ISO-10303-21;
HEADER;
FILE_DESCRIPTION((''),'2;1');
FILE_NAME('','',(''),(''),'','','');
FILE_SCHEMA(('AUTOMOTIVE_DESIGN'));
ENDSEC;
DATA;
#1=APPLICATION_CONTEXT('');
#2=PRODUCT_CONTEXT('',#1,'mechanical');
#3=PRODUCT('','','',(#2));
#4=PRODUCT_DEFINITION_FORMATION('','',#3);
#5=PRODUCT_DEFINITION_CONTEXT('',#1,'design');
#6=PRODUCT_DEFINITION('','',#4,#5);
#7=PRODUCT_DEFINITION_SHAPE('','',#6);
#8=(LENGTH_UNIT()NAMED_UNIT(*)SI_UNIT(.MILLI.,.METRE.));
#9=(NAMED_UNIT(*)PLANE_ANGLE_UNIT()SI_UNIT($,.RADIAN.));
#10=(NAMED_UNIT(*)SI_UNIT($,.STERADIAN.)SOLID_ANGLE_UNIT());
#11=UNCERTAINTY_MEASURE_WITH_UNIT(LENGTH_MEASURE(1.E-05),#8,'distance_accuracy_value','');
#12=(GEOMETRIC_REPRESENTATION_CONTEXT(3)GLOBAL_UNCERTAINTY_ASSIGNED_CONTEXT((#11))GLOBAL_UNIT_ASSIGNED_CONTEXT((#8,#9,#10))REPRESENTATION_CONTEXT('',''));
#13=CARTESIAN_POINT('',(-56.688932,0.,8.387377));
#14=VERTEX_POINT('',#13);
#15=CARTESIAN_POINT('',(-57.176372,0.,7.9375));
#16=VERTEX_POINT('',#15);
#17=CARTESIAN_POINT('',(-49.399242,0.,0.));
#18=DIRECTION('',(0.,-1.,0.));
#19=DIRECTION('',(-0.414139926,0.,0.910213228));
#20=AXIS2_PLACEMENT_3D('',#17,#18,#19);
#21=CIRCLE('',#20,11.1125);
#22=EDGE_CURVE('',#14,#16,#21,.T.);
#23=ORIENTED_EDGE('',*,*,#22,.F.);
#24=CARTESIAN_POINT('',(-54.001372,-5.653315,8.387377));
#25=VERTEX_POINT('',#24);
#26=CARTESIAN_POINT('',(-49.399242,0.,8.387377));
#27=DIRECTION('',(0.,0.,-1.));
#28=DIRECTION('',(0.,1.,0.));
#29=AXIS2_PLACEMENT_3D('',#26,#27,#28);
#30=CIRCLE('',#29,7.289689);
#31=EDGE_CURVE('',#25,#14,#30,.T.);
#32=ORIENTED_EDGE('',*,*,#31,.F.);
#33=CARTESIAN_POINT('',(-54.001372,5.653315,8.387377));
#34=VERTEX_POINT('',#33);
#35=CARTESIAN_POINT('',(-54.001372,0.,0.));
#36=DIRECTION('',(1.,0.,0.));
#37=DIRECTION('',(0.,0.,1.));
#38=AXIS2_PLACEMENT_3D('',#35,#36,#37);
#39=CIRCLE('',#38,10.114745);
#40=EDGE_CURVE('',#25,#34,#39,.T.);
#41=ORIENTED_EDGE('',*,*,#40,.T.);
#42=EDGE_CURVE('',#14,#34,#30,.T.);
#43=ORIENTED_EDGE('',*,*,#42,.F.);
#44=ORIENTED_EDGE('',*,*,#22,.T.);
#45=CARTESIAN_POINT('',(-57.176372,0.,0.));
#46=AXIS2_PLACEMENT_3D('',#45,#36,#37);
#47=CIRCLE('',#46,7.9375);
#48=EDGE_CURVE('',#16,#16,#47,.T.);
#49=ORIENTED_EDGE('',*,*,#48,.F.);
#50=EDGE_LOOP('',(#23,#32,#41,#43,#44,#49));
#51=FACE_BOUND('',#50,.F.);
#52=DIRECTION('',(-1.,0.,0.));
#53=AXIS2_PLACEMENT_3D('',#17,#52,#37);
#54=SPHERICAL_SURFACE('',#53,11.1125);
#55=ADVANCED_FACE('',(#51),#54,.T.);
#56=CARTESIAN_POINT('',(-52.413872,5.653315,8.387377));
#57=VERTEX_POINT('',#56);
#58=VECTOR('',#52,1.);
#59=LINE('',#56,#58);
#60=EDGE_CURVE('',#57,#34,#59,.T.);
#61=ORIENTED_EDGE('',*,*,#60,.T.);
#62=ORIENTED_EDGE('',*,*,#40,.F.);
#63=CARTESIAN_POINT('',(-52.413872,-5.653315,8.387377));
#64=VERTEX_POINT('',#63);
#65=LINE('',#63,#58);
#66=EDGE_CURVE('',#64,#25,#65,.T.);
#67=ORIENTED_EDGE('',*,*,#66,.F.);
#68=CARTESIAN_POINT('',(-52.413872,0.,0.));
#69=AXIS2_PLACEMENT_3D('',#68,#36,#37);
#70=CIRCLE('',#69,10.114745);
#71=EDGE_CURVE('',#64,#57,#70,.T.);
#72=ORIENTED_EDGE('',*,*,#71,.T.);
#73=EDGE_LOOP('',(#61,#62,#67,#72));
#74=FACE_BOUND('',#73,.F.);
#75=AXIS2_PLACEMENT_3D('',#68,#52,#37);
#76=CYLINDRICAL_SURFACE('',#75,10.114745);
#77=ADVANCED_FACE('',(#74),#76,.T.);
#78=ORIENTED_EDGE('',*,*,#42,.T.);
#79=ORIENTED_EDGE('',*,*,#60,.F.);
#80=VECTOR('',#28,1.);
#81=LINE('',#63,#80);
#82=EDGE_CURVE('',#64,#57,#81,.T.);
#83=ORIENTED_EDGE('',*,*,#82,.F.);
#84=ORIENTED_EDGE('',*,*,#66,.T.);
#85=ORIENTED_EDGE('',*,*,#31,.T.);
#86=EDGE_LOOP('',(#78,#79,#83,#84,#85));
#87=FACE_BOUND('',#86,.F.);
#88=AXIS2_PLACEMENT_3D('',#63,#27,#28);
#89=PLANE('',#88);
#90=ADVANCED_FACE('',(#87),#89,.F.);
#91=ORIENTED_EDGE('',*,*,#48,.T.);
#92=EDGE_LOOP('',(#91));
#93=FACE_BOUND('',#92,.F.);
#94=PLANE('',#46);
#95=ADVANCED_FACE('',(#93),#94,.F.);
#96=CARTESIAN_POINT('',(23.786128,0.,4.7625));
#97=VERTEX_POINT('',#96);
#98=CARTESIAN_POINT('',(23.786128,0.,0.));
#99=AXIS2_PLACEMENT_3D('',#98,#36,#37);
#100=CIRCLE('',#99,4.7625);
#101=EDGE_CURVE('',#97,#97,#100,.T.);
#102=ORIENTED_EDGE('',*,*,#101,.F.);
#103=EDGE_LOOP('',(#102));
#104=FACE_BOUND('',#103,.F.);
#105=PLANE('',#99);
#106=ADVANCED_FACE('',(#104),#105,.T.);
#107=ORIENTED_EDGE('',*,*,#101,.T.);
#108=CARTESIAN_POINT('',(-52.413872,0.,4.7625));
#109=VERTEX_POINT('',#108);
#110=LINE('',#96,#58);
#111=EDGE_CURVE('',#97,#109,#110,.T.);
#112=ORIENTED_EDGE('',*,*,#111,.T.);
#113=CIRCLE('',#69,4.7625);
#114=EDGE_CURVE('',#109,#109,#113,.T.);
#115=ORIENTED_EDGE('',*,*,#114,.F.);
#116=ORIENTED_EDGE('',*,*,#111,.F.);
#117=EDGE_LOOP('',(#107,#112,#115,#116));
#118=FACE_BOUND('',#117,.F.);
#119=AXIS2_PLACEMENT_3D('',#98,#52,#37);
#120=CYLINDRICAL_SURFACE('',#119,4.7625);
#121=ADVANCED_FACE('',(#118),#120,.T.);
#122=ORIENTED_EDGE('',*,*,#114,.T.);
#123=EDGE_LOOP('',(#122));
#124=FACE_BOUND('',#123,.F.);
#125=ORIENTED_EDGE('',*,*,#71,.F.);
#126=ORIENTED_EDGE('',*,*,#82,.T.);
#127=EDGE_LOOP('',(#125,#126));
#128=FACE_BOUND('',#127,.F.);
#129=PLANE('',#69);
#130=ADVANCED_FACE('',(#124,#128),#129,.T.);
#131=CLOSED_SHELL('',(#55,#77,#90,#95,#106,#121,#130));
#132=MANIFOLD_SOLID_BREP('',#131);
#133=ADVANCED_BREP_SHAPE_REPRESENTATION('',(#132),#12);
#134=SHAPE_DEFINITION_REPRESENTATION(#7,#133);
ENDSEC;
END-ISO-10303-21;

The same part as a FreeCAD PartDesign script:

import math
import FreeCAD as App
import Part
import Sketcher

V = App.Vector
Q = App.Units.Quantity

doc = App.newDocument("Part")
body = doc.addObject("PartDesign::Body", "Body")

sketch1 = body.newObject("Sketcher::SketchObject", "Sketch")
sketch1.AttachmentSupport = (doc.getObject("XZ_Plane"), [""])
sketch1.MapMode = "FlatFace"
sketch1.addGeometry(Part.LineSegment(V(-57.176372, 0, 0), V(23.786128, 0, 0)), False)
sketch1.addGeometry(Part.LineSegment(V(23.786128, 0, 0), V(23.786128, 4.7625, 0)), False)
sketch1.addGeometry(Part.LineSegment(V(23.786128, 4.7625, 0), V(-52.413872, 4.7625, 0)), False)
sketch1.addGeometry(Part.LineSegment(V(-52.413872, 4.7625, 0), V(-52.413872, 10.114745, 0)), False)
sketch1.addGeometry(Part.LineSegment(V(-52.413872, 10.114745, 0), V(-54.001372, 10.114745, 0)), False)
sketch1.addGeometry(Part.ArcOfCircle(Part.Circle(V(-49.399242, 0, 0), V(0, 0, 1), 11.1125), math.radians(114.465165), math.radians(134.415309)), False)
sketch1.addGeometry(Part.LineSegment(V(-57.176372, 7.9375, 0), V(-57.176372, 0, 0)), False)
sketch1.addConstraint(Sketcher.Constraint("Coincident", 0, 2, 1, 1))
sketch1.addConstraint(Sketcher.Constraint("Coincident", 1, 2, 2, 1))
sketch1.addConstraint(Sketcher.Constraint("Coincident", 2, 2, 3, 1))
sketch1.addConstraint(Sketcher.Constraint("Coincident", 3, 2, 4, 1))
sketch1.addConstraint(Sketcher.Constraint("Coincident", 4, 2, 5, 1))
sketch1.addConstraint(Sketcher.Constraint("Coincident", 5, 2, 6, 1))
sketch1.addConstraint(Sketcher.Constraint("Coincident", 6, 2, 0, 1))
sketch1.addConstraint(Sketcher.Constraint("Horizontal", 0))
sketch1.addConstraint(Sketcher.Constraint("Vertical", 1))
sketch1.addConstraint(Sketcher.Constraint("Horizontal", 2))
sketch1.addConstraint(Sketcher.Constraint("Vertical", 3))
sketch1.addConstraint(Sketcher.Constraint("Horizontal", 4))
sketch1.addConstraint(Sketcher.Constraint("Vertical", 6))
sketch1.addConstraint(Sketcher.Constraint("PointOnObject", 5, 3, -1))
sketch1.addConstraint(Sketcher.Constraint("PointOnObject", 0, 2, -1))
sketch1.addConstraint(Sketcher.Constraint("DistanceX", 2, 2, 2, 1, Q("3 in")))
sketch1.addConstraint(Sketcher.Constraint("Radius", 5, Q("0.4375 in")))
sketch1.addConstraint(Sketcher.Constraint("DistanceX", 0, 1, 0, 2, Q("3.1875 in")))
sketch1.addConstraint(Sketcher.Constraint("DistanceX", 4, 2, 4, 1, Q("0.0625 in")))
sketch1.addConstraint(Sketcher.Constraint("DistanceY", 1, 1, 1, 2, Q("0.1875 in")))
sketch1.addConstraint(Sketcher.Constraint("DistanceY", 6, 2, 6, 1, Q("0.3125 in")))
sketch1.addConstraint(Sketcher.Constraint("DistanceX", 5, 3, -1, 1, Q("49.399242 mm")))
revolution = body.newObject("PartDesign::Revolution", "Revolution")
revolution.Profile = sketch1
revolution.ReferenceAxis = (sketch1, ["H_Axis"])
revolution.Angle = 360

sketch2 = body.newObject("Sketcher::SketchObject", "Sketch001")
sketch2.AttachmentSupport = (doc.getObject("YZ_Plane"), [""])
sketch2.MapMode = "FlatFace"
sketch2.AttachmentOffset = App.Placement(V(0, 0, -52.413872), App.Rotation())
sketch2.addGeometry(Part.ArcOfCircle(Part.Circle(V(0, 0, 0), V(0, 0, 1), 10.114745), math.radians(56.018982), math.radians(123.981018)), False)
sketch2.addGeometry(Part.LineSegment(V(-5.653315, 8.387377, 0), V(5.653315, 8.387377, 0)), False)
sketch2.addConstraint(Sketcher.Constraint("Coincident", 0, 1, 1, 2))
sketch2.addConstraint(Sketcher.Constraint("Coincident", 1, 1, 0, 2))
sketch2.addConstraint(Sketcher.Constraint("Horizontal", 1))
sketch2.addConstraint(Sketcher.Constraint("Coincident", 0, 3, -1, 1))
sketch2.addConstraint(Sketcher.Constraint("Radius", 0, Q("10.114745 mm")))
sketch2.addConstraint(Sketcher.Constraint("DistanceX", 1, 1, 1, 2, Q("11.30663 mm")))
pocket1 = body.newObject("PartDesign::Pocket", "Pocket")
pocket1.Profile = sketch2
pocket1.Length = Q("1 in")

doc.recompute()
